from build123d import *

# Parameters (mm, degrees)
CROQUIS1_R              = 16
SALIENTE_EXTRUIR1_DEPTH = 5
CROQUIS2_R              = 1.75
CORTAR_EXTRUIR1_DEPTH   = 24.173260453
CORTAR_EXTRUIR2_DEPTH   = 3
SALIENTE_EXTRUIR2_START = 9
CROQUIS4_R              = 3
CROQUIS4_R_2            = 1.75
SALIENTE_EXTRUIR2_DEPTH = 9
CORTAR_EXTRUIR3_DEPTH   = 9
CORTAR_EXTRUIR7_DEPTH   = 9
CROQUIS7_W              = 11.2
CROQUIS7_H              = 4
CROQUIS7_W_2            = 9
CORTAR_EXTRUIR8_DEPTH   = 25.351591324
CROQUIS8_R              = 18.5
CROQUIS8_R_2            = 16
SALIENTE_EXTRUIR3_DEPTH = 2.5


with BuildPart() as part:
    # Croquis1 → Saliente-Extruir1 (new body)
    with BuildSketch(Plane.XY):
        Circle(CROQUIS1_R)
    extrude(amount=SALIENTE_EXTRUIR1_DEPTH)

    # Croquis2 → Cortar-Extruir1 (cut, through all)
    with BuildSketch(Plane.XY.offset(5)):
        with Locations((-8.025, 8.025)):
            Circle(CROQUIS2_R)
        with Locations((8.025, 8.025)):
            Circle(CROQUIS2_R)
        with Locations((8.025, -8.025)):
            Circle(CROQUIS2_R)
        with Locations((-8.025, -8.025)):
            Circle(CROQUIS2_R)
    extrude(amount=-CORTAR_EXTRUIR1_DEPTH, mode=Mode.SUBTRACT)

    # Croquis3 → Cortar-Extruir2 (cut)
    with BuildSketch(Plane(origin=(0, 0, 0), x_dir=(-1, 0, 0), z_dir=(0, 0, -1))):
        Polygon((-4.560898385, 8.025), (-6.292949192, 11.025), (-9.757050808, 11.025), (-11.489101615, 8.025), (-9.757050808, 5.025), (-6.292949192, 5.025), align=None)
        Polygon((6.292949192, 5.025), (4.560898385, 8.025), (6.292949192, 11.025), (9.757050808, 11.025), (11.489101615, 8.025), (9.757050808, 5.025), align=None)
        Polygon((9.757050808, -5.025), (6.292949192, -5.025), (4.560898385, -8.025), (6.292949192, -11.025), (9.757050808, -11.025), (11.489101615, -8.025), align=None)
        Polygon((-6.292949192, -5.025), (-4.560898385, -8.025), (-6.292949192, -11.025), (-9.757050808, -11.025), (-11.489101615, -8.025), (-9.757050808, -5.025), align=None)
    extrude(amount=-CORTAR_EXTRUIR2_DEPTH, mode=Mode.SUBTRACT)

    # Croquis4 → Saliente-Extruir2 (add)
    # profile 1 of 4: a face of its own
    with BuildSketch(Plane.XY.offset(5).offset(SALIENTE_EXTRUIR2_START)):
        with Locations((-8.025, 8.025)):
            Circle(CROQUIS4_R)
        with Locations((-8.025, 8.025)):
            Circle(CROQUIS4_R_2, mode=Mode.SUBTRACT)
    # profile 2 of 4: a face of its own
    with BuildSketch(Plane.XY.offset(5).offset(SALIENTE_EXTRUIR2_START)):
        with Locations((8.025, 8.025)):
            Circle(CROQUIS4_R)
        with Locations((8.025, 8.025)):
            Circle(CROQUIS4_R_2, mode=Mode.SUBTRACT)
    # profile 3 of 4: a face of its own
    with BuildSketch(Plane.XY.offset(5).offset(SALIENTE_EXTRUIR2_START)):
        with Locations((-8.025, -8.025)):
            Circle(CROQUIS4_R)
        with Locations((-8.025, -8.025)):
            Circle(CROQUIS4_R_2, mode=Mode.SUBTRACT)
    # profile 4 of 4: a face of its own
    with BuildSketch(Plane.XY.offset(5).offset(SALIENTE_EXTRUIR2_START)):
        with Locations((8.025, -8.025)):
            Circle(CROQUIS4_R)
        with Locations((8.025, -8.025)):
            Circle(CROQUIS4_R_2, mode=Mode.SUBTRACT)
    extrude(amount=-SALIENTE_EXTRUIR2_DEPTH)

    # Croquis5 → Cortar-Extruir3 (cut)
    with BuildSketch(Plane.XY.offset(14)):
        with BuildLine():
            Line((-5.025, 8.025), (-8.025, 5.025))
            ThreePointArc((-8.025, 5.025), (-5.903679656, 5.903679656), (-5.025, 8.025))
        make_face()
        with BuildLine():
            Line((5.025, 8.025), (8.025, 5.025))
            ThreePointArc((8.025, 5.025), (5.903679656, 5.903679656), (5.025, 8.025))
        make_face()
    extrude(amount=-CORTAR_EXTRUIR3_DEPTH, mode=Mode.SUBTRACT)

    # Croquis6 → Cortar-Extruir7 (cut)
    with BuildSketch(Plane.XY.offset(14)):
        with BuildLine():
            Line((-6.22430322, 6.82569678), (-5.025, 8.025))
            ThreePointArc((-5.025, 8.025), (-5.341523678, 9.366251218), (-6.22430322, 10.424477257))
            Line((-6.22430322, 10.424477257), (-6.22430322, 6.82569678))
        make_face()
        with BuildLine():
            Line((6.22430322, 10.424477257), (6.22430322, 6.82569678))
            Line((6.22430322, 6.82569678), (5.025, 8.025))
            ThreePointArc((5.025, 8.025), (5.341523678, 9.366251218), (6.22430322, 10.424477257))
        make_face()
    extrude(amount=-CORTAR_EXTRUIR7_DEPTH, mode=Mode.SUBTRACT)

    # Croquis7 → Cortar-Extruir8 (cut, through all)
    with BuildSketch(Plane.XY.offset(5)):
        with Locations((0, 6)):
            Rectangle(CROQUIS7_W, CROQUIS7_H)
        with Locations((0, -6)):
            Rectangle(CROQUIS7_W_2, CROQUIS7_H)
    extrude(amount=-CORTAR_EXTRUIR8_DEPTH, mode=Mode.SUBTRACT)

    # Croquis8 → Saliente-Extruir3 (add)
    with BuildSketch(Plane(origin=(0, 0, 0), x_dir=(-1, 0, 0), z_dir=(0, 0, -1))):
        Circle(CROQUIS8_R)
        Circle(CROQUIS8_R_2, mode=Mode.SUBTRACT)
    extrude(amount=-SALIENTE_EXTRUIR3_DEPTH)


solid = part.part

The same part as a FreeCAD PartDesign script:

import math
import FreeCAD as App
import Part
import Sketcher
Q = App.Units.Quantity


def add_polygon(sketch, points):
    """Adds a closed chain of lines whose ends are joined by coincident constraints."""
    first, n = sketch.GeometryCount, len(points)
    for a, b in zip(points, points[1:] + points[:1]):
        sketch.addGeometry(Part.LineSegment(App.Vector(*a, 0), App.Vector(*b, 0)), False)
    for i in range(n):
        sketch.addConstraint(Sketcher.Constraint("Coincident", first + i, 2, first + (i + 1) % n, 1))

doc = App.newDocument("Part")
body = doc.addObject("PartDesign::Body", "Body")

sketch1 = body.newObject("Sketcher::SketchObject", "Sketch")
sketch1.AttachmentSupport = (doc.getObject("XY_Plane"), [""])
sketch1.MapMode = "FlatFace"
sketch1.addGeometry(Part.Circle(App.Vector(0, 0, 0), App.Vector(0, 0, 1), 16), False)
sketch1.addConstraint(Sketcher.Constraint("Coincident", 0, 3, -1, 1))
sketch1.addConstraint(Sketcher.Constraint("Diameter", 0, 32.0))
pad1 = body.newObject("PartDesign::Pad", "Pad")
pad1.Profile = sketch1
pad1.Length = 5

sketch2 = body.newObject("Sketcher::SketchObject", "Sketch001")
sketch2.AttachmentSupport = (doc.getObject("XY_Plane"), [""])
sketch2.MapMode = "FlatFace"
sketch2.AttachmentOffset = App.Placement(App.Vector(0, 0, 5), App.Rotation())
sketch2.addGeometry(Part.Circle(App.Vector(-8, 8, 0), App.Vector(0, 0, 1), 1.8), False)
sketch2.addGeometry(Part.Circle(App.Vector(8, 8, 0), App.Vector(0, 0, 1), 1.8), False)
sketch2.addGeometry(Part.Circle(App.Vector(8, -8, 0), App.Vector(0, 0, 1), 1.8), False)
sketch2.addGeometry(Part.Circle(App.Vector(-8, -8, 0), App.Vector(0, 0, 1), 1.8), False)
sketch2.addConstraint(Sketcher.Constraint("Equal", 0, 1))
sketch2.addConstraint(Sketcher.Constraint("Equal", 1, 2))
sketch2.addConstraint(Sketcher.Constraint("Equal", 2, 3))
sketch2.addConstraint(Sketcher.Constraint("Symmetric", 0, 3, 2, 3, -1, 1))
sketch2.addConstraint(Sketcher.Constraint("Symmetric", 1, 3, 3, 3, -1, 1))
sketch2.addConstraint(Sketcher.Constraint("Symmetric", 0, 3, 1, 3, -2))
sketch2.addConstraint(Sketcher.Constraint("Diameter", 0, 3.5))
sketch2.addConstraint(Sketcher.Constraint("DistanceX", 0, 3, 1, 3, 16.05))
sketch2.addConstraint(Sketcher.Constraint("DistanceY", 2, 3, 1, 3, 16.05))
pocket1 = body.newObject("PartDesign::Pocket", "Pocket")
pocket1.Profile = sketch2
pocket1.Type = "ThroughAll"

sketch3 = body.newObject("Sketcher::SketchObject", "Sketch002")
sketch3.AttachmentSupport = (doc.getObject("XY_Plane"), [""])
sketch3.MapMode = "FlatFace"
add_polygon(sketch3, [(4.6, 8), (6.3, 11), (9.8, 11), (11.5, 8), (9.8, 5), (6.3, 5)])
add_polygon(sketch3, [(-4.6, 8), (-6.3, 5), (-9.8, 5), (-11.5, 8), (-9.8, 11), (-6.3, 11)])
add_polygon(sketch3, [(-9.8, -5), (-6.3, -5), (-4.6, -8), (-6.3, -11), (-9.8, -11), (-11.5, -8)])
add_polygon(sketch3, [(4.6, -8), (6.3, -5), (9.8, -5), (11.5, -8), (9.8, -11), (6.3, -11)])
sketch3.addConstraint(Sketcher.Constraint("Horizontal", 1))
sketch3.addConstraint(Sketcher.Constraint("Horizontal", 4))
sketch3.addConstraint(Sketcher.Constraint("Horizontal", 7))
sketch3.addConstraint(Sketcher.Constraint("Horizontal", 10))
sketch3.addConstraint(Sketcher.Constraint("Horizontal", 12))
sketch3.addConstraint(Sketcher.Constraint("Horizontal", 15))
sketch3.addConstraint(Sketcher.Constraint("Horizontal", 19))
sketch3.addConstraint(Sketcher.Constraint("Horizontal", 22))
sketch3.addConstraint(Sketcher.Constraint("Symmetric", 4, 2, 12, 2, -1, 1))
sketch3.addConstraint(Sketcher.Constraint("Symmetric", 5, 2, 13, 2, -1, 1))
sketch3.addConstraint(Sketcher.Constraint("Symmetric", 0, 2, 14, 2, -1, 1))
sketch3.addConstraint(Sketcher.Constraint("Symmetric", 2, 2, 16, 2, -1, 1))
sketch3.addConstraint(Sketcher.Constraint("Symmetric", 6, 2, 18, 2, -1, 1))
sketch3.addConstraint(Sketcher.Constraint("Symmetric", 8, 2, 20, 2, -1, 1))
sketch3.addConstraint(Sketcher.Constraint("Symmetric", 9, 2, 21, 2, -1, 1))
sketch3.addConstraint(Sketcher.Constraint("Symmetric", 11, 2, 23, 2, -1, 1))
sketch3.addConstraint(Sketcher.Constraint("Symmetric", 4, 2, 6, 2, -2))
sketch3.addConstraint(Sketcher.Constraint("Symmetric", 2, 2, 8, 2, -2))
sketch3.addConstraint(Sketcher.Constraint("Symmetric", 1, 2, 9, 2, -2))
sketch3.addConstraint(Sketcher.Constraint("Symmetric", 5, 2, 11, 2, -2))
sketch3.addConstraint(Sketcher.Constraint("Parallel", 0, 3))
sketch3.addConstraint(Sketcher.Constraint("Parallel", 2, 5))
sketch3.addConstraint(Sketcher.Constraint("Parallel", 3, 6))
sketch3.addConstraint(Sketcher.Constraint("Parallel", 5, 8))
sketch3.addConstraint(Sketcher.Constraint("Parallel", 8, 11))
sketch3.addConstraint(Sketcher.Constraint("Parallel", 13, 16))
sketch3.addConstraint(Sketcher.Constraint("Parallel", 14, 17))
sketch3.addConstraint(Sketcher.Constraint("Parallel", 16, 20))
sketch3.addConstraint(Sketcher.Constraint("Parallel", 20, 23))
sketch3.addConstraint(Sketcher.Constraint("Horizontal", 2, 2, 5, 2))
sketch3.addConstraint(Sketcher.Constraint("Vertical", 1, 2, 3, 2))
sketch3.addConstraint(Sketcher.Constraint("Angle", 0, Q("60 deg")))
sketch3.addConstraint(Sketcher.Constraint("DistanceY", 2, 2, 1, 2, 3.0))
sketch3.addConstraint(Sketcher.Constraint("DistanceX", 6, 2, 3, 2, 16.05))
sketch3.addConstraint(Sketcher.Constraint("DistanceY", 12, 2, 6, 2, 10.05))
sketch3.addConstraint(Sketcher.Constraint("DistanceX", 1, 1, 1, 2, 3.464102))
pocket2 = body.newObject("PartDesign::Pocket", "Pocket001")
pocket2.Profile = sketch3
pocket2.Length = 3
pocket2.Reversed = True

sketch4 = body.newObject("Sketcher::SketchObject", "Sketch003")
sketch4.AttachmentSupport = (doc.getObject("XY_Plane"), [""])
sketch4.MapMode = "FlatFace"
sketch4.AttachmentOffset = App.Placement(App.Vector(0, 0, 14), App.Rotation())
sketch4.addGeometry(Part.Circle(App.Vector(-8, 8, 0), App.Vector(0, 0, 1), 3), False)
sketch4.addGeometry(Part.Circle(App.Vector(-8, 8, 0), App.Vector(0, 0, 1), 1.8), False)
sketch4.addGeometry(Part.Circle(App.Vector(8, 8, 0), App.Vector(0, 0, 1), 3), False)
sketch4.addGeometry(Part.Circle(App.Vector(8, 8, 0), App.Vector(0, 0, 1), 1.8), False)
sketch4.addGeometry(Part.Circle(App.Vector(-8, -8, 0), App.Vector(0, 0, 1), 3), False)
sketch4.addGeometry(Part.Circle(App.Vector(-8, -8, 0), App.Vector(0, 0, 1), 1.8), False)
sketch4.addGeometry(Part.Circle(App.Vector(8, -8, 0), App.Vector(0, 0, 1), 3), False)
sketch4.addGeometry(Part.Circle(App.Vector(8, -8, 0), App.Vector(0, 0, 1), 1.8), False)
sketch4.addConstraint(Sketcher.Constraint("Coincident", 1, 3, 0, 3))
sketch4.addConstraint(Sketcher.Constraint("Coincident", 3, 3, 2, 3))
sketch4.addConstraint(Sketcher.Constraint("Coincident", 5, 3, 4, 3))
sketch4.addConstraint(Sketcher.Constraint("Coincident", 7, 3, 6, 3))
sketch4.addConstraint(Sketcher.Constraint("Equal", 0, 2))
sketch4.addConstraint(Sketcher.Constraint("Equal", 1, 3))
sketch4.addConstraint(Sketcher.Constraint("Equal", 2, 4))
sketch4.addConstraint(Sketcher.Constraint("Equal", 3, 5))
sketch4.addConstraint(Sketcher.Constraint("Equal", 4, 6))
sketch4.addConstraint(Sketcher.Constraint("Equal", 5, 7))
sketch4.addConstraint(Sketcher.Constraint("Symmetric", 2, 3, 4, 3, -1, 1))
sketch4.addConstraint(Sketcher.Constraint("Symmetric", 0, 3, 6, 3, -1, 1))
sketch4.addConstraint(Sketcher.Constraint("Symmetric", 0, 3, 2, 3, -2))
sketch4.addConstraint(Sketcher.Constraint("Diameter", 0, 6.0))
sketch4.addConstraint(Sketcher.Constraint("Diameter", 1, 3.5))
sketch4.addConstraint(Sketcher.Constraint("DistanceX", 0, 3, 2, 3, 16.05))
sketch4.addConstraint(Sketcher.Constraint("DistanceY", 4, 3, 0, 3, 16.05))
pad2 = body.newObject("PartDesign::Pad", "Pad001")
pad2.Profile = sketch4
pad2.Length = 9
pad2.Reversed = True

sketch5 = body.newObject("Sketcher::SketchObject", "Sketch004")
sketch5.AttachmentSupport = (doc.getObject("XY_Plane"), [""])
sketch5.MapMode = "FlatFace"
sketch5.AttachmentOffset = App.Placement(App.Vector(0, 0, 14), App.Rotation())
sketch5.addGeometry(Part.LineSegment(App.Vector(-5, 8, 0), App.Vector(-8, 5, 0)), False)
sketch5.addGeometry(Part.ArcOfCircle(Part.Circle(App.Vector(-8, 8, 0), App.Vector(0, 0, 1), 3), math.radians(-90), math.radians(0)), False)
sketch5.addGeometry(Part.LineSegment(App.Vector(8, 5, 0), App.Vector(5, 8, 0)), False)
sketch5.addGeometry(Part.ArcOfCircle(Part.Circle(App.Vector(8, 8, 0), App.Vector(0, 0, 1), 3), math.radians(180), math.radians(270)), False)
sketch5.addConstraint(Sketcher.Constraint("Coincident", 0, 1, 1, 2))
sketch5.addConstraint(Sketcher.Constraint("Coincident", 1, 1, 0, 2))
sketch5.addConstraint(Sketcher.Constraint("Coincident", 2, 1, 3, 2))
sketch5.addConstraint(Sketcher.Constraint("Coincident", 3, 1, 2, 2))
sketch5.addConstraint(Sketcher.Constraint("Equal", 1, 3))
sketch5.addConstraint(Sketcher.Constraint("Symmetric", 1, 3, 3, 3, -2))
sketch5.addConstraint(Sketcher.Constraint("Perpendicular", 0, 2))
sketch5.addConstraint(Sketcher.Constraint("Horizontal", 3, 3, 0, 1))
sketch5.addConstraint(Sketcher.Constraint("Horizontal", 0, 1, 3, 1))
sketch5.addConstraint(Sketcher.Constraint("Vertical", 3, 3, 2, 1))
sketch5.addConstraint(Sketcher.Constraint("Radius", 1, 3.0))
sketch5.addConstraint(Sketcher.Constraint("DistanceX", 1, 3, 3, 3, 16.05))
sketch5.addConstraint(Sketcher.Constraint("DistanceY", -1, 1, 1, 3, 8.025))
pocket3 = body.newObject("PartDesign::Pocket", "Pocket002")
pocket3.Profile = sketch5
pocket3.Length = 9

sketch6 = body.newObject("Sketcher::SketchObject", "Sketch005")
sketch6.AttachmentSupport = (doc.getObject("XY_Plane"), [""])
sketch6.MapMode = "FlatFace"
sketch6.AttachmentOffset = App.Placement(App.Vector(0, 0, 14), App.Rotation())
sketch6.addGeometry(Part.LineSegment(App.Vector(-6.2, 6.8, 0), App.Vector(-5, 8, 0)), False)
sketch6.addGeometry(Part.ArcOfCircle(Part.Circle(App.Vector(-8, 8, 0), App.Vector(0, 0, 1), 3), math.radians(0), math.radians(53)), False)
sketch6.addGeometry(Part.LineSegment(App.Vector(-6.2, 10.4, 0), App.Vector(-6.2, 6.8, 0)), False)
sketch6.addGeometry(Part.LineSegment(App.Vector(6.2, 6.8, 0), App.Vector(6.2, 10.4, 0)), False)
sketch6.addGeometry(Part.ArcOfCircle(Part.Circle(App.Vector(8, 8, 0), App.Vector(0, 0, 1), 3), math.radians(127), math.radians(180)), False)
sketch6.addGeometry(Part.LineSegment(App.Vector(5, 8, 0), App.Vector(6.2, 6.8, 0)), False)
sketch6.addConstraint(Sketcher.Constraint("Coincident", 0, 2, 1, 1))
sketch6.addConstraint(Sketcher.Constraint("Coincident", 1, 2, 2, 1))
sketch6.addConstraint(Sketcher.Constraint("Coincident", 2, 2, 0, 1))
sketch6.addConstraint(Sketcher.Constraint("Coincident", 3, 2, 4, 1))
sketch6.addConstraint(Sketcher.Constraint("Coincident", 4, 2, 5, 1))
sketch6.addConstraint(Sketcher.Constraint("Coincident", 5, 2, 3, 1))
sketch6.addConstraint(Sketcher.Constraint("Vertical", 2))
sketch6.addConstraint(Sketcher.Constraint("Vertical", 3))
sketch6.addConstraint(Sketcher.Constraint("Equal", 1, 4))
sketch6.addConstraint(Sketcher.Constraint("Symmetric", 1, 3, 4, 3, -2))
sketch6.addConstraint(Sketcher.Constraint("Symmetric", 2, 2, 5, 2, -2))
sketch6.addConstraint(Sketcher.Constraint("Perpendicular", 0, 5))
sketch6.addConstraint(Sketcher.Constraint("Horizontal", 4, 3, 0, 2))
sketch6.addConstraint(Sketcher.Constraint("Horizontal", 0, 2, 4, 2))
sketch6.addConstraint(Sketcher.Constraint("Radius", 1, 3.0))
sketch6.addConstraint(Sketcher.Constraint("DistanceX", 1, 3, 4, 3, 16.05))
sketch6.addConstraint(Sketcher.Constraint("DistanceY", -1, 1, 1, 3, 8.025))
sketch6.addConstraint(Sketcher.Constraint("DistanceY", 2, 2, 2, 1, 3.59878))
pocket4 = body.newObject("PartDesign::Pocket", "Pocket003")
pocket4.Profile = sketch6
pocket4.Length = 9

sketch7 = body.newObject("Sketcher::SketchObject", "Sketch006")
sketch7.AttachmentSupport = (doc.getObject("XY_Plane"), [""])
sketch7.MapMode = "FlatFace"
sketch7.AttachmentOffset = App.Placement(App.Vector(0, 0, 5), App.Rotation())
add_polygon(sketch7, [(-5.6, 8), (-5.6, 4), (5.6, 4), (5.6, 8)])
add_polygon(sketch7, [(-4.5, -4), (-4.5, -8), (4.5, -8), (4.5, -4)])
sketch7.addConstraint(Sketcher.Constraint("Vertical", 0))
sketch7.addConstraint(Sketcher.Constraint("Horizontal", 1))
sketch7.addConstraint(Sketcher.Constraint("Vertical", 2))
sketch7.addConstraint(Sketcher.Constraint("Horizontal", 3))
sketch7.addConstraint(Sketcher.Constraint("Vertical", 4))
sketch7.addConstraint(Sketcher.Constraint("Horizontal", 5))
sketch7.addConstraint(Sketcher.Constraint("Vertical", 6))
sketch7.addConstraint(Sketcher.Constraint("Horizontal", 7))
sketch7.addConstraint(Sketcher.Constraint("Equal", 2, 4))
sketch7.addConstraint(Sketcher.Constraint("DistanceX", 5, 1, 5, 2, 9.0))
sketch7.addConstraint(Sketcher.Constraint("DistanceY", 0, 2, 0, 1, 4.0))
sketch7.addConstraint(Sketcher.Constraint("DistanceX", 1, 1, 1, 2, 11.2))
sketch7.addConstraint(Sketcher.Constraint("DistanceY", -1, 1, 0, 2, 4.0))
sketch7.addConstraint(Sketcher.Constraint("DistanceY", 4, 2, -1, 1, 8.0))
sketch7.addConstraint(Sketcher.Constraint("DistanceX", 0, 2, -1, 1, 5.6))
sketch7.addConstraint(Sketcher.Constraint("DistanceX", 4, 2, -1, 1, 4.5))
pocket5 = body.newObject("PartDesign::Pocket", "Pocket004")
pocket5.Profile = sketch7
pocket5.Type = "ThroughAll"

sketch8 = body.newObject("Sketcher::SketchObject", "Sketch007")
sketch8.AttachmentSupport = (doc.getObject("XY_Plane"), [""])
sketch8.MapMode = "FlatFace"
sketch8.addGeometry(Part.Circle(App.Vector(0, 0, 0), App.Vector(0, 0, 1), 18), False)
sketch8.addGeometry(Part.Circle(App.Vector(0, 0, 0), App.Vector(0, 0, 1), 16), False)
sketch8.addConstraint(Sketcher.Constraint("Coincident", 0, 3, -1, 1))
sketch8.addConstraint(Sketcher.Constraint("Coincident", 1, 3, -1, 1))
sketch8.addConstraint(Sketcher.Constraint("Diameter", 0, 37.0))
sketch8.addConstraint(Sketcher.Constraint("Diameter", 1, 32.0))
pad3 = body.newObject("PartDesign::Pad", "Pad002")
pad3.Profile = sketch8
pad3.Length = 2.5

doc.recompute()
